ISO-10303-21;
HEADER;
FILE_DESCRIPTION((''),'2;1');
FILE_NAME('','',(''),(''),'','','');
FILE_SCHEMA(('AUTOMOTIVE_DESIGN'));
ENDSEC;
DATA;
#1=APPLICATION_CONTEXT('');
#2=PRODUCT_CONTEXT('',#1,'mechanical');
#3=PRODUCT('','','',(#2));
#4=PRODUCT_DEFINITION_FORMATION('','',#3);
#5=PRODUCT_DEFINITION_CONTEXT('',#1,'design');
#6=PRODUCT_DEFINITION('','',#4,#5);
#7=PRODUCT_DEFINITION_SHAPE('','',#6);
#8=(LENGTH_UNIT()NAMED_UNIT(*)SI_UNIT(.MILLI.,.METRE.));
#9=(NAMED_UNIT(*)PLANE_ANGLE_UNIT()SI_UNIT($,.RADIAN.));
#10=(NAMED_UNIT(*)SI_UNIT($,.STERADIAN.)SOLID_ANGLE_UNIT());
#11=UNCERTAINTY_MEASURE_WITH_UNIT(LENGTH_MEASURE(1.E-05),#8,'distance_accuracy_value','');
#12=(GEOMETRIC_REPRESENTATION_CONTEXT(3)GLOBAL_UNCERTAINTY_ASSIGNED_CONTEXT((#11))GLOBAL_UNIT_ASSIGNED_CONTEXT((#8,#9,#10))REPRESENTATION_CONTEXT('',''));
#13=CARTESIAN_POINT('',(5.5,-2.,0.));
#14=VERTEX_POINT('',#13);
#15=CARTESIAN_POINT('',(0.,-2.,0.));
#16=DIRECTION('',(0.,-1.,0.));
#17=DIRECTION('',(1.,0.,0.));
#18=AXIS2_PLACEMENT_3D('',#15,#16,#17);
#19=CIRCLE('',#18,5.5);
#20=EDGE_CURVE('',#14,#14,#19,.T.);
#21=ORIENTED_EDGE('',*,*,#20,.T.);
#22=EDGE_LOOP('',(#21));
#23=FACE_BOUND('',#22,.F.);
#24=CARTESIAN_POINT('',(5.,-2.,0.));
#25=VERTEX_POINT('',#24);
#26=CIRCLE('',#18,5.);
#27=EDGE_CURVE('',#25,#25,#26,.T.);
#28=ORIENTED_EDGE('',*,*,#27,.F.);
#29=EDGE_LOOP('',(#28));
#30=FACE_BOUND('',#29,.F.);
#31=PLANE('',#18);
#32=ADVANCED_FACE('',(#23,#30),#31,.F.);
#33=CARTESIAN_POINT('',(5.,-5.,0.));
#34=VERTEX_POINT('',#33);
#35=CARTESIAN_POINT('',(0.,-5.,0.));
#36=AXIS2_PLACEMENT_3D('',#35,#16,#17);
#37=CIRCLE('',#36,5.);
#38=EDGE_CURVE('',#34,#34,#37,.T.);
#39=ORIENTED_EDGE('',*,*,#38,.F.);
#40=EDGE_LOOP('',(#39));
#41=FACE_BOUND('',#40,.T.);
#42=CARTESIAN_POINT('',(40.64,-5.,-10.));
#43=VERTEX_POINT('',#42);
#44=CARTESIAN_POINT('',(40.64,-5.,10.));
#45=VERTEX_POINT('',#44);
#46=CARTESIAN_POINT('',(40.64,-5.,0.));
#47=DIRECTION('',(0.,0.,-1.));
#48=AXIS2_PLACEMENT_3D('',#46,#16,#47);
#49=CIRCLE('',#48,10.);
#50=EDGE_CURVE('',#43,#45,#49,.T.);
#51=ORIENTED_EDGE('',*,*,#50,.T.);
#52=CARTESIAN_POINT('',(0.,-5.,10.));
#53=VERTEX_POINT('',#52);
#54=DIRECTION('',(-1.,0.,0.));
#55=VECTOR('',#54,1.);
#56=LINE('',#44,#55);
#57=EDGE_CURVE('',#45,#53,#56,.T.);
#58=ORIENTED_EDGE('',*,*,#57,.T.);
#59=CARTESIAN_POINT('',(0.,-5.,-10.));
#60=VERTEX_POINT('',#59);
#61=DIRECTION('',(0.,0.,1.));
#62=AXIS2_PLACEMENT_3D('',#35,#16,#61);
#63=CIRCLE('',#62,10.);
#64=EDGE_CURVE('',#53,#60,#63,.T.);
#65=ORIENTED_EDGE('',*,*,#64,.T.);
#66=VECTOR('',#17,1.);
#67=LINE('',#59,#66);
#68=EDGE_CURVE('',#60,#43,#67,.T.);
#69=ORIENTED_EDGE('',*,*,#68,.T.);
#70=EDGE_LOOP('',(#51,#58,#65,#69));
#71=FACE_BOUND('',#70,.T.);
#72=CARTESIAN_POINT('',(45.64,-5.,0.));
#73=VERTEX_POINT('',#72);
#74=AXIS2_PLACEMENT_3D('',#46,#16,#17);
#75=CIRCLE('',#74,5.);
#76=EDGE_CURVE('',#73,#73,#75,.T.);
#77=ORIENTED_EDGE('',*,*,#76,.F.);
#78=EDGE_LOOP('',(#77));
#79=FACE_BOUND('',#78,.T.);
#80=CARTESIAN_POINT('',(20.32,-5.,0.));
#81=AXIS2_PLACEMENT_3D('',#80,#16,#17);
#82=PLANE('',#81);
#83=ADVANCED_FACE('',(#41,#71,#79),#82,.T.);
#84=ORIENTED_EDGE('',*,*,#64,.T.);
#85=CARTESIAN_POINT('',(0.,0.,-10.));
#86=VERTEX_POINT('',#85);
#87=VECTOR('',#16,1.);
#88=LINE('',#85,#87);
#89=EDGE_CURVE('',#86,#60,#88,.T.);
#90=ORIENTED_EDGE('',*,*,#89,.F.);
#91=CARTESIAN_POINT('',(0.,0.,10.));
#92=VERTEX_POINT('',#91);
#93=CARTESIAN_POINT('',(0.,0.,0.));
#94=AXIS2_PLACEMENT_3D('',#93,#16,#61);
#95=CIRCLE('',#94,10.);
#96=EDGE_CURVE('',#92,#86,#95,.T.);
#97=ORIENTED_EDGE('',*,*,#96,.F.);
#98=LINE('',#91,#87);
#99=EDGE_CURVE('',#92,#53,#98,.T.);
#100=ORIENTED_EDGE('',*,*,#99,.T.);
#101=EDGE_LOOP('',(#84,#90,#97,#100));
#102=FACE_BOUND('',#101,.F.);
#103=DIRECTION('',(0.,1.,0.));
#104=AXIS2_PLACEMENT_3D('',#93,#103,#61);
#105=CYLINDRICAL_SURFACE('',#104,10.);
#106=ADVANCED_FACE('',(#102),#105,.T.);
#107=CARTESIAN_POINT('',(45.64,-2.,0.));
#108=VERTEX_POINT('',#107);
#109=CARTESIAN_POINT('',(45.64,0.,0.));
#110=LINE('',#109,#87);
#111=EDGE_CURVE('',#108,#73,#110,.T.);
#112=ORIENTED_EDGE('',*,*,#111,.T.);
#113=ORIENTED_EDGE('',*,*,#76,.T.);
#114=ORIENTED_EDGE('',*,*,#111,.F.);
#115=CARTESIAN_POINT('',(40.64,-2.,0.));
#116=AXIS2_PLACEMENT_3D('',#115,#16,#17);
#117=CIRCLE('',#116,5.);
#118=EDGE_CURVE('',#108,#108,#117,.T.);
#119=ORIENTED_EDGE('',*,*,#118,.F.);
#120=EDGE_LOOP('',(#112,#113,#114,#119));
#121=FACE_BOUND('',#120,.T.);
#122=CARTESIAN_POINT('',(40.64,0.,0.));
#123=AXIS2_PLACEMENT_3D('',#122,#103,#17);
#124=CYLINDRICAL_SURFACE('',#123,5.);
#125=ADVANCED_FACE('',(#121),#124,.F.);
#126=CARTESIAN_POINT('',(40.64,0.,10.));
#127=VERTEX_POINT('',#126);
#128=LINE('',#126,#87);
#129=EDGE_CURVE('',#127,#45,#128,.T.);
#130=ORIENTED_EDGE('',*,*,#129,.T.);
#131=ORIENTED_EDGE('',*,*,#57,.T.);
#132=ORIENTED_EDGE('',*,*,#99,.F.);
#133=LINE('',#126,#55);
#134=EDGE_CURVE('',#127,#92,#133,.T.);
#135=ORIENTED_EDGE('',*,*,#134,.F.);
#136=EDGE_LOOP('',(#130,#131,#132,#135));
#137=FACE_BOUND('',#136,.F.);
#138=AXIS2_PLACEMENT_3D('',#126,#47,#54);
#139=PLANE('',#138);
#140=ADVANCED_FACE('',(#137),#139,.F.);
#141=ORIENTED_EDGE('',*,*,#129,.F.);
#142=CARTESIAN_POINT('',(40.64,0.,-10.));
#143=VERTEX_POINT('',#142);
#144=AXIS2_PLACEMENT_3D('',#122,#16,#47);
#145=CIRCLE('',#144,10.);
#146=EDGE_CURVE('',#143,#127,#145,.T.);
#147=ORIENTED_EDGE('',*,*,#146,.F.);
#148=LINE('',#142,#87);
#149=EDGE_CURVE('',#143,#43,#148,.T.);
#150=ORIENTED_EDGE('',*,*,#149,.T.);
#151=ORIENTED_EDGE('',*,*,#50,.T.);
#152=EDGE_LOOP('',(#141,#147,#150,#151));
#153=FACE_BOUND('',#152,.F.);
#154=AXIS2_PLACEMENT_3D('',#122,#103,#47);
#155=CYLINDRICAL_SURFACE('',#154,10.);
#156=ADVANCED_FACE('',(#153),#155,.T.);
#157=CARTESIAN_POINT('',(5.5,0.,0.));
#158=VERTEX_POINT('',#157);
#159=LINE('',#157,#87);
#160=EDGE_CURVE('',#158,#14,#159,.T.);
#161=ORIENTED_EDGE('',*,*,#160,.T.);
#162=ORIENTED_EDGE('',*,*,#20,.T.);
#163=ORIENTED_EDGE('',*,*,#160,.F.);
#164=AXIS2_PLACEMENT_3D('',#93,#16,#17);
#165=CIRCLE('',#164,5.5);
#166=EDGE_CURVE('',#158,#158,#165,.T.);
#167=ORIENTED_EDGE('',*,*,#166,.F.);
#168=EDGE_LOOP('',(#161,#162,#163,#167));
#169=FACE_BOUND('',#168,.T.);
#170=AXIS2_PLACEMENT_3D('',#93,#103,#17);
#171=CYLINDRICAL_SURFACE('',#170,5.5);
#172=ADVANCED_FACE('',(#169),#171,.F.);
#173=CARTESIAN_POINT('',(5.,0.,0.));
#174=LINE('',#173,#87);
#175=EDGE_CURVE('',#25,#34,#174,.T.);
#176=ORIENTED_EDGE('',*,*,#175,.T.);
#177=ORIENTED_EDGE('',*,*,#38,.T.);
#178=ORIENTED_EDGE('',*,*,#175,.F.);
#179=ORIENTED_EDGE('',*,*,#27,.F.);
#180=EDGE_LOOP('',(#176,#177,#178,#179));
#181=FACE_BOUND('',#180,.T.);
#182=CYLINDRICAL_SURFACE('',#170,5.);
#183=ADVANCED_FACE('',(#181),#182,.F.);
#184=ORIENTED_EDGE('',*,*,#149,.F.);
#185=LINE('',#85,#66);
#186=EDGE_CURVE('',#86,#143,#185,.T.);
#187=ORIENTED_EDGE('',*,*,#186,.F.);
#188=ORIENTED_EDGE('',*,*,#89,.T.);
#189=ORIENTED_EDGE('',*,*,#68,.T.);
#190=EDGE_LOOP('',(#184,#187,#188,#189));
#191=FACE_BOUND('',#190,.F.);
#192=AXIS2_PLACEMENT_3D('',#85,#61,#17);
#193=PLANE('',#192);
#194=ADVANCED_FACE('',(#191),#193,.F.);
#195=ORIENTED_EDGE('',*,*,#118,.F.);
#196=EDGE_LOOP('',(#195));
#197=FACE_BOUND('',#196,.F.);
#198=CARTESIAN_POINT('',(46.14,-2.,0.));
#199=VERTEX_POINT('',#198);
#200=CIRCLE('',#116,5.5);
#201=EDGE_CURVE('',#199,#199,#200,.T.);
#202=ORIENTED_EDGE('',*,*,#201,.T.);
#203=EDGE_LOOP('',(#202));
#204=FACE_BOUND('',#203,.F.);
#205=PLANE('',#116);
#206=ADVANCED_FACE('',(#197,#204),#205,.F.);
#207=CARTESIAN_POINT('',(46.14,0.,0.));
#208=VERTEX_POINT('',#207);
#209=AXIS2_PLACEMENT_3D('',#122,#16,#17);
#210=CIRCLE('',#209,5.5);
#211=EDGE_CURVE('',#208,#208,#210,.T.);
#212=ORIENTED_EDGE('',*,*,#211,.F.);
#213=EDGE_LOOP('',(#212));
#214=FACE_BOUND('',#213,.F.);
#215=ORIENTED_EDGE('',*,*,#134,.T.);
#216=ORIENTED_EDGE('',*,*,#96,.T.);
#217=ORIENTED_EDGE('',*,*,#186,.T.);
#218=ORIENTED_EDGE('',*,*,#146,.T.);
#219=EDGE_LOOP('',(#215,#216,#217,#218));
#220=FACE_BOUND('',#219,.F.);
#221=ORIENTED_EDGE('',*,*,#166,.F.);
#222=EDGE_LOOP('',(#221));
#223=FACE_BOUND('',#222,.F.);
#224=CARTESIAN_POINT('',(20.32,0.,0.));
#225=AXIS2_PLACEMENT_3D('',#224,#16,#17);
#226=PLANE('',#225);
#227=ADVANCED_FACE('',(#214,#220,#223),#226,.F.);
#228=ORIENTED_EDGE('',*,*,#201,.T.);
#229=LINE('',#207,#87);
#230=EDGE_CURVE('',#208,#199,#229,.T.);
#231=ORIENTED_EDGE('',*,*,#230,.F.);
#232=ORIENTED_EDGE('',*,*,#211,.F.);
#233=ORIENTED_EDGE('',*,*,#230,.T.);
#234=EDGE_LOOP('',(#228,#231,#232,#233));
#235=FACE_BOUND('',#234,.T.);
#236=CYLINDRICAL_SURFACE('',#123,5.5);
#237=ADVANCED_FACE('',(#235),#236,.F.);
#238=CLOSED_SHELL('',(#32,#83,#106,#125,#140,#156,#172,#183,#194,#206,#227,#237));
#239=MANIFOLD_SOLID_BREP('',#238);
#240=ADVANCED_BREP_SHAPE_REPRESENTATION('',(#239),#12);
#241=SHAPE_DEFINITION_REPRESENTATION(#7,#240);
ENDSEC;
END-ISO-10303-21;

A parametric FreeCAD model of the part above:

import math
import FreeCAD as App
import Part
import Sketcher

V = App.Vector

doc = App.newDocument("Part")
body = doc.addObject("PartDesign::Body", "Body")

sketch1 = body.newObject("Sketcher::SketchObject", "Sketch")
sketch1.AttachmentSupport = (doc.getObject("XZ_Plane"), [""])
sketch1.MapMode = "FlatFace"
sketch1.addGeometry(Part.LineSegment(V(41, 10, 0), V(0, 10, 0)), False)
sketch1.addGeometry(Part.ArcOfCircle(Part.Circle(V(0, 0, 0), V(0, 0, 1), 10), math.radians(90), math.radians(270)), False)
sketch1.addGeometry(Part.LineSegment(V(0, -10, 0), V(41, -10, 0)), False)
sketch1.addGeometry(Part.ArcOfCircle(Part.Circle(V(41, 0, 0), V(0, 0, 1), 10), math.radians(-90), math.radians(90)), False)
sketch1.addGeometry(Part.Circle(V(0, 0, 0), V(0, 0, 1), 5), False)
sketch1.addGeometry(Part.Circle(V(41, 0, 0), V(0, 0, 1), 5), False)
sketch1.addConstraint(Sketcher.Constraint("Tangent", 0, 2, 1, 1))
sketch1.addConstraint(Sketcher.Constraint("Tangent", 1, 2, 2, 1))
sketch1.addConstraint(Sketcher.Constraint("Tangent", 2, 2, 3, 1))
sketch1.addConstraint(Sketcher.Constraint("Tangent", 3, 2, 0, 1))
sketch1.addConstraint(Sketcher.Constraint("Horizontal", 0))
sketch1.addConstraint(Sketcher.Constraint("Horizontal", 2))
sketch1.addConstraint(Sketcher.Constraint("Coincident", 1, 3, -1, 1))
sketch1.addConstraint(Sketcher.Constraint("Coincident", 4, 3, -1, 1))
sketch1.addConstraint(Sketcher.Constraint("Coincident", 5, 3, 3, 3))
sketch1.addConstraint(Sketcher.Constraint("Equal", 4, 5))
sketch1.addConstraint(Sketcher.Constraint("Diameter", 4, 10.0))
sketch1.addConstraint(Sketcher.Constraint("Radius", 1, 10.0))
sketch1.addConstraint(Sketcher.Constraint("DistanceX", 0, 2, 0, 1, 40.64))
pad1 = body.newObject("PartDesign::Pad", "Pad")
pad1.Profile = sketch1
pad1.Length = 5

sketch2 = body.newObject("Sketcher::SketchObject", "Sketch001")
sketch2.AttachmentSupport = (doc.getObject("XZ_Plane"), [""])
sketch2.MapMode = "FlatFace"
sketch2.addGeometry(Part.Circle(V(41, 0, 0), V(0, 0, 1), 6), False)
sketch2.addGeometry(Part.Circle(V(41, 0, 0), V(0, 0, 1), 5), False)
sketch2.addGeometry(Part.Circle(V(0, 0, 0), V(0, 0, 1), 6), False)
sketch2.addGeometry(Part.Circle(V(0, 0, 0), V(0, 0, 1), 5), False)
sketch2.addConstraint(Sketcher.Constraint("Coincident", 2, 3, -1, 1))
sketch2.addConstraint(Sketcher.Constraint("Coincident", 3, 3, -1, 1))
sketch2.addConstraint(Sketcher.Constraint("Coincident", 1, 3, 0, 3))
sketch2.addConstraint(Sketcher.Constraint("Equal", 0, 2))
sketch2.addConstraint(Sketcher.Constraint("Equal", 1, 3))
sketch2.addConstraint(Sketcher.Constraint("PointOnObject", 0, 3, -1))
sketch2.addConstraint(Sketcher.Constraint("Diameter", 0, 11.0))
sketch2.addConstraint(Sketcher.Constraint("Diameter", 1, 10.0))
sketch2.addConstraint(Sketcher.Constraint("DistanceX", -1, 1, 0, 3, 40.64))
pocket1 = body.newObject("PartDesign::Pocket", "Pocket")
pocket1.Profile = sketch2
pocket1.Length = 2
pocket1.Reversed = True

doc.recompute()
